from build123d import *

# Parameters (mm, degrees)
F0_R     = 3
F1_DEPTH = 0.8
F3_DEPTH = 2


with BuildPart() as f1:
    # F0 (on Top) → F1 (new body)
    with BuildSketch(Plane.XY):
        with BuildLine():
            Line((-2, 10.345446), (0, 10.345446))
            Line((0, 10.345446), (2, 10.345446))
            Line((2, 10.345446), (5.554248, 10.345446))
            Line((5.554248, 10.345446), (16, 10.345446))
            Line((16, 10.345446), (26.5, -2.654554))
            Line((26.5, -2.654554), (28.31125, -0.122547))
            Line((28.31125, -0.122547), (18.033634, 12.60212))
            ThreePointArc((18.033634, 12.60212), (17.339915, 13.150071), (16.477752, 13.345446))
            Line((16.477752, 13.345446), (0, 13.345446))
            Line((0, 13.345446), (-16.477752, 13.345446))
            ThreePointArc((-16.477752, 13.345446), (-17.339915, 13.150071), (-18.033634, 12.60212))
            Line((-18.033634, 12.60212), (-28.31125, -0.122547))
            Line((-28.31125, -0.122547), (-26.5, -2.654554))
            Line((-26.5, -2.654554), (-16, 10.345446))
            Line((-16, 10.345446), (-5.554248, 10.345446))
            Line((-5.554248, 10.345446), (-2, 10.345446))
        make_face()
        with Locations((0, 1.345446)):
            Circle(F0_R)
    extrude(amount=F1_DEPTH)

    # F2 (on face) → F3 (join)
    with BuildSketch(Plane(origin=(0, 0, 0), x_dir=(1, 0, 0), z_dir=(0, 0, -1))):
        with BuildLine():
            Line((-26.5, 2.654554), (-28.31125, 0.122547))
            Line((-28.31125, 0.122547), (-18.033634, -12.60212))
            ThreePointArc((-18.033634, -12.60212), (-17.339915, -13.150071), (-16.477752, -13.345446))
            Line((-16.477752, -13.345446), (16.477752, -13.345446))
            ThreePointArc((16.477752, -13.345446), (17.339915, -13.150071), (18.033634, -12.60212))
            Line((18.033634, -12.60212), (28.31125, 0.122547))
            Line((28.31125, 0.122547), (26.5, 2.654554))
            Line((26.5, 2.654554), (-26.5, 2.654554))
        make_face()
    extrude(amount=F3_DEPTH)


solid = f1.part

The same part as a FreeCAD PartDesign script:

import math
import FreeCAD as App
import Part
import Sketcher

V = App.Vector

doc = App.newDocument("Part")
body = doc.addObject("PartDesign::Body", "Body")
body.AllowCompound = True

# Sketch on XY plane
sketch1 = body.newObject("Sketcher::SketchObject", "Sketch")
sketch1.AttachmentSupport = (doc.getObject("XY_Plane"), [""])
sketch1.MapMode = "FlatFace"
sketch1.addGeometry([
    Part.LineSegment(V(16, 10.3, 0), V(26.5, -2.7, 0)),  # 0
    Part.LineSegment(V(26.5, -2.7, 0), V(28.3, -0.1, 0)),  # 1
    Part.LineSegment(V(28.3, -0.1, 0), V(18, 12.6, 0)),  # 2
    Part.ArcOfCircle(Part.Circle(V(16.5, 11.3, 0), V(0, 0, 1), 2), math.radians(39), math.radians(90)),  # 3
    Part.LineSegment(V(16.5, 13.3, 0), V(-16.5, 13.3, 0)),  # 4
    Part.ArcOfCircle(Part.Circle(V(-16.5, 11.3, 0), V(0, 0, 1), 2), math.radians(90), math.radians(141)),  # 5
    Part.LineSegment(V(-18, 12.6, 0), V(-28.3, -0.1, 0)),  # 6
    Part.LineSegment(V(-28.3, -0.1, 0), V(-26.5, -2.7, 0)),  # 7
    Part.LineSegment(V(-26.5, -2.7, 0), V(-16, 10.3, 0)),  # 8
    Part.LineSegment(V(-16, 10.3, 0), V(16, 10.3, 0)),  # 9
    Part.Circle(V(0, 1.3, 0), V(0, 0, 1), 3),  # 10
], False)
sketch1.addConstraint([
    Sketcher.Constraint("Coincident", 0, 2, 1, 1),
    Sketcher.Constraint("Coincident", 1, 2, 2, 1),
    Sketcher.Constraint("Tangent", 2, 2, 3, 1),
    Sketcher.Constraint("Tangent", 3, 2, 4, 1),
    Sketcher.Constraint("Tangent", 4, 2, 5, 1),
    Sketcher.Constraint("Tangent", 5, 2, 6, 1),
    Sketcher.Constraint("Coincident", 6, 2, 7, 1),
    Sketcher.Constraint("Coincident", 7, 2, 8, 1),
    Sketcher.Constraint("Coincident", 8, 2, 9, 1),
    Sketcher.Constraint("Coincident", 9, 2, 0, 1),
    Sketcher.Constraint("Horizontal", 4),
    Sketcher.Constraint("Horizontal", 9),
    Sketcher.Constraint("Equal", 3, 5),
    Sketcher.Constraint("Symmetric", 2, 2, 5, 2, -2),
    Sketcher.Constraint("Symmetric", 0, 2, 7, 2, -2),
    Sketcher.Constraint("PointOnObject", 10, 3, -2),
    Sketcher.Constraint("Parallel", 0, 2),
    Sketcher.Constraint("Parallel", 6, 8),
    Sketcher.Constraint("Horizontal", 1, 2, 6, 2),
    Sketcher.Constraint("Diameter", 10, 6.0),
    Sketcher.Constraint("DistanceX", 9, 1, 9, 2, 32.0),
    Sketcher.Constraint("DistanceY", 0, 2, 10, 3, 4.0),
    Sketcher.Constraint("DistanceY", 0, 2, 3, 2, 16.0),
    Sketcher.Constraint("DistanceY", 8, 2, 4, 2, 3.0),
    Sketcher.Constraint("DistanceX", -1, 1, 0, 2, 26.5),
    Sketcher.Constraint("Radius", 3, 2.000006),
    Sketcher.Constraint("DistanceX", 5, 3, 1, 2, 44.788999),
    Sketcher.Constraint("DistanceX", 3, 3, 1, 2, 11.833501),
    Sketcher.Constraint("DistanceY", -1, 1, 3, 3, 11.34544),
])
pad1 = body.newObject("PartDesign::Pad", "Pad")
pad1.Profile = sketch1
pad1.Length = 0.8

# Sketch on XY plane
sketch2 = body.newObject("Sketcher::SketchObject", "Sketch001")
sketch2.AttachmentSupport = (doc.getObject("XY_Plane"), [""])
sketch2.MapMode = "FlatFace"
sketch2.addGeometry([
    Part.LineSegment(V(-26.5, -2.7, 0), V(-28.3, -0.1, 0)),  # 0
    Part.LineSegment(V(-28.3, -0.1, 0), V(-18, 12.6, 0)),  # 1
    Part.ArcOfCircle(Part.Circle(V(-16.5, 11.3, 0), V(0, 0, 1), 2), math.radians(90), math.radians(141)),  # 2
    Part.LineSegment(V(-16.5, 13.3, 0), V(16.5, 13.3, 0)),  # 3
    Part.ArcOfCircle(Part.Circle(V(16.5, 11.3, 0), V(0, 0, 1), 2), math.radians(39), math.radians(90)),  # 4
    Part.LineSegment(V(18, 12.6, 0), V(28.3, -0.1, 0)),  # 5
    Part.LineSegment(V(28.3, -0.1, 0), V(26.5, -2.7, 0)),  # 6
    Part.LineSegment(V(26.5, -2.7, 0), V(-26.5, -2.7, 0)),  # 7
], False)
sketch2.addConstraint([
    Sketcher.Constraint("Coincident", 0, 2, 1, 1),
    Sketcher.Constraint("Tangent", 1, 2, 2, 2),
    Sketcher.Constraint("Tangent", 2, 1, 3, 1),
    Sketcher.Constraint("Tangent", 3, 2, 4, 2),
    Sketcher.Constraint("Tangent", 4, 1, 5, 1),
    Sketcher.Constraint("Coincident", 5, 2, 6, 1),
    Sketcher.Constraint("Coincident", 6, 2, 7, 1),
    Sketcher.Constraint("Coincident", 7, 2, 0, 1),
    Sketcher.Constraint("Horizontal", 3),
    Sketcher.Constraint("Horizontal", 7),
    Sketcher.Constraint("Equal", 2, 4),
    Sketcher.Constraint("Symmetric", 1, 2, 4, 1, -2),
    Sketcher.Constraint("Horizontal", 0, 2, 5, 2),
    Sketcher.Constraint("Equal", 0, 6),
    Sketcher.Constraint("DistanceX", 7, 2, 7, 1, 53.0),
    Sketcher.Constraint("DistanceY", 6, 2, 3, 2, 16.0),
    Sketcher.Constraint("Radius", 2, 2.000006),
    Sketcher.Constraint("DistanceX", 0, 2, 4, 3, 44.788999),
    Sketcher.Constraint("DistanceX", 0, 2, 2, 3, 11.833501),
    Sketcher.Constraint("Distance", 1, 16.35685),
    Sketcher.Constraint("DistanceY", -1, 1, 2, 3, 11.34544),
])
pad2 = body.newObject("PartDesign::Pad", "Pad001")
pad2.Profile = sketch2
pad2.Length = 2
pad2.Reversed = True

doc.recompute()
